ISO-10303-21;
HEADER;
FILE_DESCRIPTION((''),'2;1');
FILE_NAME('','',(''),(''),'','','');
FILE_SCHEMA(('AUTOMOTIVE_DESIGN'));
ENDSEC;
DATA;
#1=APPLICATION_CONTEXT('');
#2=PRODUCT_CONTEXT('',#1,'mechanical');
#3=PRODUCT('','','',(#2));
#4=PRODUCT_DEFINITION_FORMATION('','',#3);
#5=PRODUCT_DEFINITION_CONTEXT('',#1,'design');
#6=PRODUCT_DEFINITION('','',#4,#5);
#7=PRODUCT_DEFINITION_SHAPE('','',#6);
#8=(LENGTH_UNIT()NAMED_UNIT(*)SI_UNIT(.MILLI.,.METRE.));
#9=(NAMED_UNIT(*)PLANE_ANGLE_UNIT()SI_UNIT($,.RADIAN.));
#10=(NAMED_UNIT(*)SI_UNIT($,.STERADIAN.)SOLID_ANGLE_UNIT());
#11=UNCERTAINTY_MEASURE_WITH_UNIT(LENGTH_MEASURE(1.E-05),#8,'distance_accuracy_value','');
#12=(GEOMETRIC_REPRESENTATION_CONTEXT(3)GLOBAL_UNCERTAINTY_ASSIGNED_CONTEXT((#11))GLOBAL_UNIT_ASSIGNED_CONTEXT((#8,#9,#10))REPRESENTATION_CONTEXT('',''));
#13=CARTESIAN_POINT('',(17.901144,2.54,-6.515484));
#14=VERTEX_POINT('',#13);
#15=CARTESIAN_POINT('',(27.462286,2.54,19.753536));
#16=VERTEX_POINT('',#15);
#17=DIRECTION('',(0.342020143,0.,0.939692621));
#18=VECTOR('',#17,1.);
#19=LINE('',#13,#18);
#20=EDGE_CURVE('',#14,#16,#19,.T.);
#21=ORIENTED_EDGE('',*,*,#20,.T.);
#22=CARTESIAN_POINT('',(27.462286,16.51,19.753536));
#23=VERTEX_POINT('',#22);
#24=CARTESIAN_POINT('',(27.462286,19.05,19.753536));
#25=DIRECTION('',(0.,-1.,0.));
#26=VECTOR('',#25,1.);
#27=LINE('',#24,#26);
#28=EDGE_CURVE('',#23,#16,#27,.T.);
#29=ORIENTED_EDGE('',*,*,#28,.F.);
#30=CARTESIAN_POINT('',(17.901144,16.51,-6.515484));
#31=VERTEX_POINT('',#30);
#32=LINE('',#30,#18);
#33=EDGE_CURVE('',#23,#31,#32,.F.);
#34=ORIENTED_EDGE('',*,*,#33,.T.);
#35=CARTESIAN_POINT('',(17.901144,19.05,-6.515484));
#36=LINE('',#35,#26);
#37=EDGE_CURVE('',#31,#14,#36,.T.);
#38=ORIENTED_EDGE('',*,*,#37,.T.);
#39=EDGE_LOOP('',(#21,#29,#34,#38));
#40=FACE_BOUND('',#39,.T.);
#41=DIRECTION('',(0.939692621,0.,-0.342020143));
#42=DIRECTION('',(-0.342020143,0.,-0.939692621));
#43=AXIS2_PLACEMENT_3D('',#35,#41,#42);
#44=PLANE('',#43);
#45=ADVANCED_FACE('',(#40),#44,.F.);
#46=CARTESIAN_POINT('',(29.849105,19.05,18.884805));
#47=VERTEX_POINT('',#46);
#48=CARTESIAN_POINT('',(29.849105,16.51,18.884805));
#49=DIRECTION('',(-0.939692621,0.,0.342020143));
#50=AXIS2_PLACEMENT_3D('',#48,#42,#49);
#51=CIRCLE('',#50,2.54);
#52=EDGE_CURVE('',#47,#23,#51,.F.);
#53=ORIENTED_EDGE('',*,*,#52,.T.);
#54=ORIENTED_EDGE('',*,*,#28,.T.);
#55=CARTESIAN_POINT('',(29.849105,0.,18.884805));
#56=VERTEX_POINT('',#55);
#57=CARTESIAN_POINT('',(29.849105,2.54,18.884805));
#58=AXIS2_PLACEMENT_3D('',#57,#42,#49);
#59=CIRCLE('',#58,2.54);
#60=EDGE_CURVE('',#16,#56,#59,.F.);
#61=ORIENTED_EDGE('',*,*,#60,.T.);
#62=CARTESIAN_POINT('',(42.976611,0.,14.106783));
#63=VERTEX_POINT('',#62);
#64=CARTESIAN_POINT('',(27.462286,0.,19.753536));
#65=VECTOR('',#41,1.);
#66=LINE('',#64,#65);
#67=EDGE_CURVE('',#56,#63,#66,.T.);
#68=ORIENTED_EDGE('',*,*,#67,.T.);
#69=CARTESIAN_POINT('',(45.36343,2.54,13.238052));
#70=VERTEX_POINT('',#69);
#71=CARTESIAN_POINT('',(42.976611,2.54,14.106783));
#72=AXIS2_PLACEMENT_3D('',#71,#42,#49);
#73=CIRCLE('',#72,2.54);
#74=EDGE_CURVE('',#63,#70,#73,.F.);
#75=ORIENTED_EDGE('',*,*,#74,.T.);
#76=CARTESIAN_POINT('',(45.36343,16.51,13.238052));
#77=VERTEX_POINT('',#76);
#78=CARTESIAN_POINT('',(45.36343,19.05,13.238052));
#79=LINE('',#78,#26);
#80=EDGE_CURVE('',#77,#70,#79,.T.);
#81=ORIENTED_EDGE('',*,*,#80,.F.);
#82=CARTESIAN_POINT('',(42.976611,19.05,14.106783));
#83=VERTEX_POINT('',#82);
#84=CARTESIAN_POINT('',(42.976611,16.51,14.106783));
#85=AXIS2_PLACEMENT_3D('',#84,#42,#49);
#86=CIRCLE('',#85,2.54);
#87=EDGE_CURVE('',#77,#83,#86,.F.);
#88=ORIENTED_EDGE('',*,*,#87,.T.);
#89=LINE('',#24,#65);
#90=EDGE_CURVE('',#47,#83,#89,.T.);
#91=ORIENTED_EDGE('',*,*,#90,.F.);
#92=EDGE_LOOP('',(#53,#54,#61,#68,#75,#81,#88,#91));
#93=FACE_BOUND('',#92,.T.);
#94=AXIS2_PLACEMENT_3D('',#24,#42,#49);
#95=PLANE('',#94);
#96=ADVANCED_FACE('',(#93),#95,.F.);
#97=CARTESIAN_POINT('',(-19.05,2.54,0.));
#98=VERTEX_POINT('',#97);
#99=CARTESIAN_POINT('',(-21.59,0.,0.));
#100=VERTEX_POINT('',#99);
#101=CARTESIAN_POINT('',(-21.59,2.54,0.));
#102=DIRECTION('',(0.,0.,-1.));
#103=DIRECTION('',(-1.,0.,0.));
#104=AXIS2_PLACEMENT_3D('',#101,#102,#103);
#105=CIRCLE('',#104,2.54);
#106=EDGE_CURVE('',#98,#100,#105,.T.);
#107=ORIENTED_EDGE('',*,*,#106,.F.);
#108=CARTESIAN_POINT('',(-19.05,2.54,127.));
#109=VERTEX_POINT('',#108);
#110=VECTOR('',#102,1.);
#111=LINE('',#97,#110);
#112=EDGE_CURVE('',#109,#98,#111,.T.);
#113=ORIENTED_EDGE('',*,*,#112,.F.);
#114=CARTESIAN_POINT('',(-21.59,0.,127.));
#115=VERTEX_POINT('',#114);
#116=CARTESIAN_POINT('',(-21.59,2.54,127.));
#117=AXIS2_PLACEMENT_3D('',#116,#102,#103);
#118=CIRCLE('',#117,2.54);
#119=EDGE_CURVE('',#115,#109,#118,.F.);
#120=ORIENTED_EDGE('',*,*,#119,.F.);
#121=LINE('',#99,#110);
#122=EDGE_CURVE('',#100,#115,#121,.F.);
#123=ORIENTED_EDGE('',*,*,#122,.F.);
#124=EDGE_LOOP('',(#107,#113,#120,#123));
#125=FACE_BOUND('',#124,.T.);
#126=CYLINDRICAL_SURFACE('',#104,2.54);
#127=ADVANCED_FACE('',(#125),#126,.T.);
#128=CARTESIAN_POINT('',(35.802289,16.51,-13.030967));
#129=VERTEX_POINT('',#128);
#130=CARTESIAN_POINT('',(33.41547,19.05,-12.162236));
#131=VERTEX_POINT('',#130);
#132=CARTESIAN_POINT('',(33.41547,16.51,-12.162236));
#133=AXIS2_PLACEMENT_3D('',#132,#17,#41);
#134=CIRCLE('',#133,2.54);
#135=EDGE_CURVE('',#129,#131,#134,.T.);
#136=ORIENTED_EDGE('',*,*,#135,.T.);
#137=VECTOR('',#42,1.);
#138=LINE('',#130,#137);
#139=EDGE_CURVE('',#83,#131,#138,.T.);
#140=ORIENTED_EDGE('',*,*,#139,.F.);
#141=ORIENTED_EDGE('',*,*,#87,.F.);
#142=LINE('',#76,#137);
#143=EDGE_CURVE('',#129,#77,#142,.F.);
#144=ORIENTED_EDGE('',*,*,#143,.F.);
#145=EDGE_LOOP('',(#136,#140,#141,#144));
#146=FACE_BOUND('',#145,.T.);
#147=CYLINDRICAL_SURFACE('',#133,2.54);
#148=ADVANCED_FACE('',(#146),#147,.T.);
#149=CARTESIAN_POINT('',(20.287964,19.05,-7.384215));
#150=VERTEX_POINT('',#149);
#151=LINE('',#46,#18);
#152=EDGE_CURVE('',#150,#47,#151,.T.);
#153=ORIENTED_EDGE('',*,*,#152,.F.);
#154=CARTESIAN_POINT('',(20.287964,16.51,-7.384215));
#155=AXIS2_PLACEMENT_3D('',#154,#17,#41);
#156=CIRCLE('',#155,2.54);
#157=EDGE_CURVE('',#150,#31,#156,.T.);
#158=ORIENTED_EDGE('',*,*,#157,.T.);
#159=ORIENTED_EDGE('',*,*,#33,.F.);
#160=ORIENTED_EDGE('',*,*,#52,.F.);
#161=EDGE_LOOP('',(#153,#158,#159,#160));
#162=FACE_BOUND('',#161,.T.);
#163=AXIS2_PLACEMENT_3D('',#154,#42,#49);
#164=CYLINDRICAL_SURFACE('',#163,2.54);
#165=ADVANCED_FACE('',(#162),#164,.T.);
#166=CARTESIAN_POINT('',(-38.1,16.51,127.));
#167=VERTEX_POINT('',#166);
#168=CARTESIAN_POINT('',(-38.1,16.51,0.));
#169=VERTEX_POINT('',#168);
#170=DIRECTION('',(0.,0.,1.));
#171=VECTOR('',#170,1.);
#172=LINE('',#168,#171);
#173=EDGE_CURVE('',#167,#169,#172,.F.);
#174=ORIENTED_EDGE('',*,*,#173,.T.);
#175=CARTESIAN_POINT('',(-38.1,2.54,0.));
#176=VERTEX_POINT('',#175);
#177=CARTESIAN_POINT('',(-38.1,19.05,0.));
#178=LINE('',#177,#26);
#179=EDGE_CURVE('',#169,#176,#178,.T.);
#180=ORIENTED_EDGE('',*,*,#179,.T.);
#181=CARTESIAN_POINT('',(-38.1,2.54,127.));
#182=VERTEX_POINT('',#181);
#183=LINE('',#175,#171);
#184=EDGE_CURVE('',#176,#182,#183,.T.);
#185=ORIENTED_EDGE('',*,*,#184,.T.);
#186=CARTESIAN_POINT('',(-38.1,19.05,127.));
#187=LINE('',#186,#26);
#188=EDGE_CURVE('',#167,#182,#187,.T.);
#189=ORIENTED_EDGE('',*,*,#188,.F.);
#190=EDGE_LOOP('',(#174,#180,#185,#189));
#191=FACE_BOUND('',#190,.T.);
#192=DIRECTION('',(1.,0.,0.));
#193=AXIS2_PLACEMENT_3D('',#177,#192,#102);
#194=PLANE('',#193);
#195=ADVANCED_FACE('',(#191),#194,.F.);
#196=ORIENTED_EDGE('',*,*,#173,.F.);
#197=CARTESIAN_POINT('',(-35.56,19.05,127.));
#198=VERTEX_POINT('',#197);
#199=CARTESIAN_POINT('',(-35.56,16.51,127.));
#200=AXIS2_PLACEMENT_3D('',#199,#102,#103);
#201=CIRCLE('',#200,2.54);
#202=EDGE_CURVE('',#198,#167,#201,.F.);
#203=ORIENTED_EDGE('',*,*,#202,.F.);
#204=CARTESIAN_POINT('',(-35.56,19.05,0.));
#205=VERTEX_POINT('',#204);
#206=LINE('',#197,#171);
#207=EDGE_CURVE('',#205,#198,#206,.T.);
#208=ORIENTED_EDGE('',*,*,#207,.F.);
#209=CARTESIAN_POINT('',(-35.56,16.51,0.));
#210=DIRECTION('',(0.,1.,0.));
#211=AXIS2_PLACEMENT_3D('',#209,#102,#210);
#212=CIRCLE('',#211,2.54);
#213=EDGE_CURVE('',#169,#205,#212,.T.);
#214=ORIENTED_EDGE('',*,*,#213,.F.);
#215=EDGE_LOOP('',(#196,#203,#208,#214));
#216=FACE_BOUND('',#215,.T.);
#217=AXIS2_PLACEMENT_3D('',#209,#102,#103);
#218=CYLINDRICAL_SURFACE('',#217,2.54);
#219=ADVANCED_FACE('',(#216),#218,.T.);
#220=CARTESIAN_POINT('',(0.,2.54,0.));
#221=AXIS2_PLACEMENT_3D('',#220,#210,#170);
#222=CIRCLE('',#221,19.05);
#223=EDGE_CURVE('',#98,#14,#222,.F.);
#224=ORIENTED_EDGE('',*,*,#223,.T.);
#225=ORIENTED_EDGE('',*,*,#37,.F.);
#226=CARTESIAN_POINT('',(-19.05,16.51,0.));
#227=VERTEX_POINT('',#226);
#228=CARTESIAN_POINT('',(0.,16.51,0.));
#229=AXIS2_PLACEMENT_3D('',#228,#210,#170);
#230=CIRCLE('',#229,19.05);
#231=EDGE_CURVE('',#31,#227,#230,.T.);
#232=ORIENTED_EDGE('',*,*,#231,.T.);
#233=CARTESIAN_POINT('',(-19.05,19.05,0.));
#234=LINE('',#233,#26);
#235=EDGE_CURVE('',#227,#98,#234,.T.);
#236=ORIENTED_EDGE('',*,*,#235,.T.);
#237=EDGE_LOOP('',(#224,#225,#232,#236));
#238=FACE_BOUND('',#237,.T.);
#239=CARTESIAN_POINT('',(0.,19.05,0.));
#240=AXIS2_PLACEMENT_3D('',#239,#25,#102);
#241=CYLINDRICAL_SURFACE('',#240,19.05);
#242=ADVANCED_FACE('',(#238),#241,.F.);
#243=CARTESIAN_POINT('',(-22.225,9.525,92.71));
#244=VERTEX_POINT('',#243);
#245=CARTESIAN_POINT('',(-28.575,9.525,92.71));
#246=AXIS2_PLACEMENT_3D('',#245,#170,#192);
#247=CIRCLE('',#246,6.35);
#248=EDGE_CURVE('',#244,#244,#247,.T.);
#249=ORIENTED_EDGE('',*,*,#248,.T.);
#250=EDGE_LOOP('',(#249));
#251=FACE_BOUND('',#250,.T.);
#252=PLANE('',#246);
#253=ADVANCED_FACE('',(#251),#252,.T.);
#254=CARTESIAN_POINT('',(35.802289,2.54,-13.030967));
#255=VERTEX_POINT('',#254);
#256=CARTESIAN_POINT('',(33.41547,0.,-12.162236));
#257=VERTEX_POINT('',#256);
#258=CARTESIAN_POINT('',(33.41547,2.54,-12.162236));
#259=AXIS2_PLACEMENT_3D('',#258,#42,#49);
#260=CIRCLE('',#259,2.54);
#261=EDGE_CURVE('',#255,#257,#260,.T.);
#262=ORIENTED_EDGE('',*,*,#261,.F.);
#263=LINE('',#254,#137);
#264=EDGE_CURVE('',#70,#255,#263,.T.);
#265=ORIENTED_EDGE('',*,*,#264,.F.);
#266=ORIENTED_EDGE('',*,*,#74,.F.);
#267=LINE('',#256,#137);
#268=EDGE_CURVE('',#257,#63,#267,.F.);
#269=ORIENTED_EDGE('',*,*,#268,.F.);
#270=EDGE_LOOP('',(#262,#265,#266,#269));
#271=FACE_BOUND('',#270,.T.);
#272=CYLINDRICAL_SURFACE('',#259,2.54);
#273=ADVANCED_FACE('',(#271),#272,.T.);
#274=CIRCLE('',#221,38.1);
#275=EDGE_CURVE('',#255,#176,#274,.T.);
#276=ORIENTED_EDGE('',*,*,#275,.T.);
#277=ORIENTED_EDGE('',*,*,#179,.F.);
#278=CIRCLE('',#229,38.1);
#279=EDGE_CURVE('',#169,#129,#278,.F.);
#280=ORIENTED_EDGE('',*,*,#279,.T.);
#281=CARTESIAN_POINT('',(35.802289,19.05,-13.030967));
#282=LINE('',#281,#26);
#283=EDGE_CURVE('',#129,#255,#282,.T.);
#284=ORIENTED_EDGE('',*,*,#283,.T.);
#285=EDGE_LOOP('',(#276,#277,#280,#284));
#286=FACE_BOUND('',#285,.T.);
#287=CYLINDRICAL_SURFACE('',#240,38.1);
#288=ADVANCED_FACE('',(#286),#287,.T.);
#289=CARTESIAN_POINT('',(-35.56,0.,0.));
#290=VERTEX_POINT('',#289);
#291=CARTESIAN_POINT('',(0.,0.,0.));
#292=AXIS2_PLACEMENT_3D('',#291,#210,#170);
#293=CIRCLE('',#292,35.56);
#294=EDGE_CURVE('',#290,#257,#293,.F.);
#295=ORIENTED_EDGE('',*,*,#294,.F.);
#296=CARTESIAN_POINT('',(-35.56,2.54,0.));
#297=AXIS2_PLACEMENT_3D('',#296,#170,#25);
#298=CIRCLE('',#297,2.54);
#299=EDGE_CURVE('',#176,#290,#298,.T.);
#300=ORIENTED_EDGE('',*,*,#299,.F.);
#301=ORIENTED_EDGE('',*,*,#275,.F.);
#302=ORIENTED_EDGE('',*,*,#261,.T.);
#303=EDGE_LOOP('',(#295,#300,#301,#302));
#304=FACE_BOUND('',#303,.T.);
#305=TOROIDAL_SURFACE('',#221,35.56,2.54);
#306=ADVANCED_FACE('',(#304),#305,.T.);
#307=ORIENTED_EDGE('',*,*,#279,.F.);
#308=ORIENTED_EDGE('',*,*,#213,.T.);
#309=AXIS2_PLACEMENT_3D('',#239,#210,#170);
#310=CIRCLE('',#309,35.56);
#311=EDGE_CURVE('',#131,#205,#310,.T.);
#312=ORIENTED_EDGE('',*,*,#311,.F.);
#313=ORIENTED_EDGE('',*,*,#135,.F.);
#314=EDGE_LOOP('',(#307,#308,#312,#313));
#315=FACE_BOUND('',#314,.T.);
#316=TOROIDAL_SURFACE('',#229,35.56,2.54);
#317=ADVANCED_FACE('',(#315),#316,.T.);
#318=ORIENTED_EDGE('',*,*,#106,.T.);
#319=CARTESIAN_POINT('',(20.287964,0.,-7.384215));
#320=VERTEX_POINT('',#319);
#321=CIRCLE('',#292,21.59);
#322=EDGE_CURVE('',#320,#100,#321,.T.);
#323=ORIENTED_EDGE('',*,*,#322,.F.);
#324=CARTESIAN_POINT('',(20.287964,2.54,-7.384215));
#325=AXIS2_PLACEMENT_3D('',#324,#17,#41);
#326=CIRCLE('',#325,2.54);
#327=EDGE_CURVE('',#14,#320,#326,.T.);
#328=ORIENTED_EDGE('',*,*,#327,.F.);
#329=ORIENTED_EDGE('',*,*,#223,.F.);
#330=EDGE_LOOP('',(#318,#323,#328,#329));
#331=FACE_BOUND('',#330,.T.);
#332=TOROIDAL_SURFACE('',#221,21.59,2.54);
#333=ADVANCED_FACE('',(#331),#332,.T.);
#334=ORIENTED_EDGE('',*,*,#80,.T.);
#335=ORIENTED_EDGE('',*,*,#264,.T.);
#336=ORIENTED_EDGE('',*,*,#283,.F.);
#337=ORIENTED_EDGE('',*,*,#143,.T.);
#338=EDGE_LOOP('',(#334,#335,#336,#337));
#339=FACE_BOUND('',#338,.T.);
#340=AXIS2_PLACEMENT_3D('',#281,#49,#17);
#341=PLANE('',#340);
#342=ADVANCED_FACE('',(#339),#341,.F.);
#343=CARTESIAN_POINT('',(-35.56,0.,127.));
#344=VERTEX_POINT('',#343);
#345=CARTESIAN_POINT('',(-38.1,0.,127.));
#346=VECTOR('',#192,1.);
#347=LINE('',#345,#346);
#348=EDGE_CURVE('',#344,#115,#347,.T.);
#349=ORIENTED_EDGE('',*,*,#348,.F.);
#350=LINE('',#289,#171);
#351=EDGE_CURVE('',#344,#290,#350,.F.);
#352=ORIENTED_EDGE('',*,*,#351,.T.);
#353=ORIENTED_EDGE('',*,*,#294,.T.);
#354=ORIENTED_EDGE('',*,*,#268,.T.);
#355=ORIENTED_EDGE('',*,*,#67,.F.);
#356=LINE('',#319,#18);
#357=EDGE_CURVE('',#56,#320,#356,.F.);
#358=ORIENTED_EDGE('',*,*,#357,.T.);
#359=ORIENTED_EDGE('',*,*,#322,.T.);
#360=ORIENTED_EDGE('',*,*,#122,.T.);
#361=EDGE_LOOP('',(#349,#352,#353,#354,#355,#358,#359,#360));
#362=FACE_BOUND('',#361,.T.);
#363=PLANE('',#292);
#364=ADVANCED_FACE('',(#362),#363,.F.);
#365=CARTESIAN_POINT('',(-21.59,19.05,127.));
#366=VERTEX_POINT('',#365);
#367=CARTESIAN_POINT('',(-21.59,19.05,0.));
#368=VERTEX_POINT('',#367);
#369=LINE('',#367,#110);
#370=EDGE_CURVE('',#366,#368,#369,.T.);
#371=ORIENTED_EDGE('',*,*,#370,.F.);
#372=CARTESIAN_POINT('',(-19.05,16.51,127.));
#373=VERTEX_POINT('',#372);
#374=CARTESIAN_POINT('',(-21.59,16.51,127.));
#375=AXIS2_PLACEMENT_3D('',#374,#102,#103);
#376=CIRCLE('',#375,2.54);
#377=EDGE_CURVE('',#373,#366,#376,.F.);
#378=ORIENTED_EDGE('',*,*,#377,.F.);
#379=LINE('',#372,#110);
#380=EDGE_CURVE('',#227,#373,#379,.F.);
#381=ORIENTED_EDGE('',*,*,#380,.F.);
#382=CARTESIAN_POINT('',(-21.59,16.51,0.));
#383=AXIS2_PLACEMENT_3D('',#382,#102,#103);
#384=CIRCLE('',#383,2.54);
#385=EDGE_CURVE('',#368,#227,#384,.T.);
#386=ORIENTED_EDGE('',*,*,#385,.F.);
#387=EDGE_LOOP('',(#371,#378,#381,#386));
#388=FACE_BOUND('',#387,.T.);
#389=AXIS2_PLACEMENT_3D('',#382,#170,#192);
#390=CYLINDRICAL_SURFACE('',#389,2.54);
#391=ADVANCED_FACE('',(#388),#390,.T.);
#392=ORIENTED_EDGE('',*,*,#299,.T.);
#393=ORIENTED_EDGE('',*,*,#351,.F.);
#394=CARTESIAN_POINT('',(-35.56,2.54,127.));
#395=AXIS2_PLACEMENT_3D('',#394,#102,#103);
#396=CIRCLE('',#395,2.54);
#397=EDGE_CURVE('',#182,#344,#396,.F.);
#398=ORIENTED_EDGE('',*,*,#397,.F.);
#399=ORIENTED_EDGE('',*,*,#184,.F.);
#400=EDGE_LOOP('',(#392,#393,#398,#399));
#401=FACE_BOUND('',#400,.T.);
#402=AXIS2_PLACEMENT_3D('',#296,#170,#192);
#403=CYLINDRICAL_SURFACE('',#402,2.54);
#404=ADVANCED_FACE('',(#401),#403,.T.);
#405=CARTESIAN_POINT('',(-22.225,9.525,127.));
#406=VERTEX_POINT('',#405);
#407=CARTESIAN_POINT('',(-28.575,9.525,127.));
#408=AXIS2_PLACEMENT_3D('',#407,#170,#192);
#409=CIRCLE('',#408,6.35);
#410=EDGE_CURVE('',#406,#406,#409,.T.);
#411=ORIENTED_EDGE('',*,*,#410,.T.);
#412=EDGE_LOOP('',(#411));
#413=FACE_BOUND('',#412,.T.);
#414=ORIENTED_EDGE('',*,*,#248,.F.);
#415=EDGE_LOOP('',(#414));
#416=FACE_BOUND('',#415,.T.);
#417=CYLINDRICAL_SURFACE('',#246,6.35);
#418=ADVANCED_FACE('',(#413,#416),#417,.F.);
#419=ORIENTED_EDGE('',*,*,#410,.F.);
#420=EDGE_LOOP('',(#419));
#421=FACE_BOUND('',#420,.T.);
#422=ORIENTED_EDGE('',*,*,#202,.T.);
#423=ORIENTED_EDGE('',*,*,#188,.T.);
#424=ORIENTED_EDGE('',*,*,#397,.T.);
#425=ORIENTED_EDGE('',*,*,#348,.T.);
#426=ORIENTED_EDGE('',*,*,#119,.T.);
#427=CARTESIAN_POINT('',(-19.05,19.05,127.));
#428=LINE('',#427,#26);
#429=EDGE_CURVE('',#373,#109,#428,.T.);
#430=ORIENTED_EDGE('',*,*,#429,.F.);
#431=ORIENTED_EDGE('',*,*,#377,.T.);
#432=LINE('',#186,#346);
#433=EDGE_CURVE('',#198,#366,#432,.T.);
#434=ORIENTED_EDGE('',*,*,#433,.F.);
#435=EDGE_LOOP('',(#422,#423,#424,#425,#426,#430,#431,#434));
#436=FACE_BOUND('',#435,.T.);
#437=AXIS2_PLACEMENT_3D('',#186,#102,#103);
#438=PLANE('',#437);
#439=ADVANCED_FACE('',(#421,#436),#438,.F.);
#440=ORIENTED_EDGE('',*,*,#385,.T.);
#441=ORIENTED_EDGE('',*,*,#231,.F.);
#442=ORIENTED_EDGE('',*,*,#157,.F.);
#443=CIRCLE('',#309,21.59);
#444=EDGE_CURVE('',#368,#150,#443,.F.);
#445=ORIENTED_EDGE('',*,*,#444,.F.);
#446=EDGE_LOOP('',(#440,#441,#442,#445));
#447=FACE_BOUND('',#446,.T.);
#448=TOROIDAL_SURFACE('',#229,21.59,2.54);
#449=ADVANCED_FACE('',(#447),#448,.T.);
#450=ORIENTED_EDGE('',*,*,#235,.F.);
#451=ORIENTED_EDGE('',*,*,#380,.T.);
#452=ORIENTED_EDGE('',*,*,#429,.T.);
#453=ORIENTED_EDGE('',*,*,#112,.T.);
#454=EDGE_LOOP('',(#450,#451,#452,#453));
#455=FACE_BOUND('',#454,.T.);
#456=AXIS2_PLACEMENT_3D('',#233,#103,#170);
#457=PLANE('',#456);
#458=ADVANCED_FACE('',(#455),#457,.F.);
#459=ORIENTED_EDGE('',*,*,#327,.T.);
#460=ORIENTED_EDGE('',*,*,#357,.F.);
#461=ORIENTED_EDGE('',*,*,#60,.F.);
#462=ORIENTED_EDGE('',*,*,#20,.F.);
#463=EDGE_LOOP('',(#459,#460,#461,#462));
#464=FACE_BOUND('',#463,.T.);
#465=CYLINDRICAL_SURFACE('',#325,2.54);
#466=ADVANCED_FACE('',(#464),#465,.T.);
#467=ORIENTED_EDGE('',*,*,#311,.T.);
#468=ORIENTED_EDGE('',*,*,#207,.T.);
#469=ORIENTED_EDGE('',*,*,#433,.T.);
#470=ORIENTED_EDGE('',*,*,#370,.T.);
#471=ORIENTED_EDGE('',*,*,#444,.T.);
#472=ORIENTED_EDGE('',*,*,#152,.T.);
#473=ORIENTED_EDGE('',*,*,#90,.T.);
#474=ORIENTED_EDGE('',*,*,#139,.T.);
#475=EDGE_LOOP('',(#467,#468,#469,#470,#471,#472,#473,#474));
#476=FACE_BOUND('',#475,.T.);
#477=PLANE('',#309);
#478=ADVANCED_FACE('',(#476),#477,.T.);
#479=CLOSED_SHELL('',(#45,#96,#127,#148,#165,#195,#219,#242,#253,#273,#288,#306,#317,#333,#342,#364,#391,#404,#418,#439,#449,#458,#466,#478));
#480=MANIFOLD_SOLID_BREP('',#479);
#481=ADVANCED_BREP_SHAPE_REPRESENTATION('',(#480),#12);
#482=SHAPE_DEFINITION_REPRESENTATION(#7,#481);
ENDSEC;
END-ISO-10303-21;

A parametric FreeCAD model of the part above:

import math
import FreeCAD as App
import Part
import Sketcher
from FreeCAD import Vector
Q = App.Units.Quantity


def edges_at(feature, points):
    """Names of the edges that pass closest to the given points."""
    edges = feature.Shape.Edges
    near = lambda p: min(range(len(edges)), key=lambda i: edges[i].distToShape(Part.Vertex(*p))[0])
    return sorted({f"Edge{near(p) + 1}" for p in points})

doc = App.newDocument("Part")
body = doc.addObject("PartDesign::Body", "Body")

# Sketch on XZ plane
sketch1 = body.newObject("Sketcher::SketchObject", "Sketch")
sketch1.AttachmentSupport = (doc.getObject("XZ_Plane"), [""])
sketch1.MapMode = "FlatFace"
sketch1.addGeometry(Part.LineSegment(Vector(27, 20, 0), Vector(45, 13, 0)), False)
sketch1.addGeometry(Part.LineSegment(Vector(45, 13, 0), Vector(36, -13, 0)), False)
sketch1.addGeometry(Part.ArcOfCircle(Part.Circle(Vector(0, 0, 0), Vector(0, 0, 1), 38), math.radians(180), math.radians(340)), False)
sketch1.addGeometry(Part.LineSegment(Vector(-38, 0, 0), Vector(-38, 127, 0)), False)
sketch1.addGeometry(Part.LineSegment(Vector(-38, 127, 0), Vector(-19, 127, 0)), False)
sketch1.addGeometry(Part.LineSegment(Vector(-19, 127, 0), Vector(-19, 0, 0)), False)
sketch1.addGeometry(Part.ArcOfCircle(Part.Circle(Vector(0, 0, 0), Vector(0, 0, 1), 19), math.radians(180), math.radians(340)), False)
sketch1.addGeometry(Part.LineSegment(Vector(18, -7, 0), Vector(27, 20, 0)), False)
sketch1.addConstraint(Sketcher.Constraint("Coincident", 0, 2, 1, 1))
sketch1.addConstraint(Sketcher.Constraint("Tangent", 1, 2, 2, 2))
sketch1.addConstraint(Sketcher.Constraint("Tangent", 2, 1, 3, 1))
sketch1.addConstraint(Sketcher.Constraint("Coincident", 3, 2, 4, 1))
sketch1.addConstraint(Sketcher.Constraint("Coincident", 4, 2, 5, 1))
sketch1.addConstraint(Sketcher.Constraint("Tangent", 5, 2, 6, 1))
sketch1.addConstraint(Sketcher.Constraint("Tangent", 6, 2, 7, 1))
sketch1.addConstraint(Sketcher.Constraint("Coincident", 7, 2, 0, 1))
sketch1.addConstraint(Sketcher.Constraint("Vertical", 3))
sketch1.addConstraint(Sketcher.Constraint("Horizontal", 4))
sketch1.addConstraint(Sketcher.Constraint("Vertical", 5))
sketch1.addConstraint(Sketcher.Constraint("Coincident", 2, 3, -1, 1))
sketch1.addConstraint(Sketcher.Constraint("Coincident", 6, 3, -1, 1))
sketch1.addConstraint(Sketcher.Constraint("Perpendicular", 0, 1))
sketch1.addConstraint(Sketcher.Constraint("Parallel", 1, 7))
sketch1.addConstraint(Sketcher.Constraint("Radius", 2, Q("1.5 in")))
sketch1.addConstraint(Sketcher.Constraint("DistanceY", 3, 1, 3, 2, Q("5 in")))
sketch1.addConstraint(Sketcher.Constraint("Radius", 6, Q("0.75 in")))
sketch1.addConstraint(Sketcher.Constraint("Angle", 0, Q("-20 deg")))
sketch1.addConstraint(Sketcher.Constraint("DistanceX", -1, 1, 0, 2, 45.36343))
pad1 = body.newObject("PartDesign::Pad", "Pad")
pad1.Profile = sketch1
pad1.Length = Q("0.75 in")
pad1.Reversed = True

# Sketch on XY plane
sketch2 = body.newObject("Sketcher::SketchObject", "Sketch001")
sketch2.AttachmentSupport = (doc.getObject("XY_Plane"), [""])
sketch2.MapMode = "FlatFace"
sketch2.AttachmentOffset = App.Placement(Vector(0, 0, 5 * 25.4), App.Rotation())
sketch2.addGeometry(Part.Circle(Vector(-29, 10, 0), Vector(0, 0, 1), 6), False)
sketch2.addConstraint(Sketcher.Constraint("Diameter", 0, Q("0.5 in")))
sketch2.addConstraint(Sketcher.Constraint("DistanceX", 0, 3, -1, 1, Q("1.125 in")))
sketch2.addConstraint(Sketcher.Constraint("DistanceY", -1, 1, 0, 3, Q("0.375 in")))
pocket1 = body.newObject("PartDesign::Pocket", "Pocket")
pocket1.Profile = sketch2
pocket1.Length = Q("1.35 in")
doc.recompute()

fillet = body.newObject("PartDesign::Fillet", "Fillet")
fillet.Base = (pocket1, edges_at(pocket1, [
    (40.583, 19.05, 0.104),
    (22.682, 0, 6.619),
    (-6.616, 19.05, -37.521),
    (-38.1, 19.05, 63.5),
    (-19.05, 19.05, 63.5),
    (-3.308, 19.05, -18.761),
    (22.682, 19.05, 6.619),
    (-3.308, 0, -18.761),
    (-19.05, 0, 63.5),
    (-38.1, 0, 63.5),
    (-6.616, 0, -37.521),
    (40.583, 0, 0.104),
]))
fillet.Radius = Q("0.1 in")

doc.recompute()
